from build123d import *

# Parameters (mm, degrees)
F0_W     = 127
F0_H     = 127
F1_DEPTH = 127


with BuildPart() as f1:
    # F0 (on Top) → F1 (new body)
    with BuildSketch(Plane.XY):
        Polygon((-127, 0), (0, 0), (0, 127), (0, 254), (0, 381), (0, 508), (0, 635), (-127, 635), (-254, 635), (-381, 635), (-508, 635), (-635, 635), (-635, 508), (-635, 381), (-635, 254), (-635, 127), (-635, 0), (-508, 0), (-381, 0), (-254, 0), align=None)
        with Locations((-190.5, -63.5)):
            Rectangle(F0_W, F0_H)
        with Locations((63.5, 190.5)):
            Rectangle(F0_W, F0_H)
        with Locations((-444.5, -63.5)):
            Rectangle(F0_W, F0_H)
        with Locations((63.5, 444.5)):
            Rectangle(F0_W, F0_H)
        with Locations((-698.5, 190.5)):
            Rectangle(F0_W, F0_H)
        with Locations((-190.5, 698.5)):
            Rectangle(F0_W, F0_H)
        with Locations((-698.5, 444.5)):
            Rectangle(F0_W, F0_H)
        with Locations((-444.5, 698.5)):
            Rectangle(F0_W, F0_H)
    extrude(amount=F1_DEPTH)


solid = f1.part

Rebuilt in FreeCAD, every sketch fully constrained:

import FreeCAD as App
import Part
import Sketcher

V = App.Vector
Q = App.Units.Quantity


def add_polygon(sketch, points):
    """Adds a closed chain of lines whose ends are joined by coincident constraints."""
    first, n = sketch.GeometryCount, len(points)
    for a, b in zip(points, points[1:] + points[:1]):
        sketch.addGeometry(Part.LineSegment(App.Vector(*a, 0), App.Vector(*b, 0)), False)
    for i in range(n):
        sketch.addConstraint(Sketcher.Constraint("Coincident", first + i, 2, first + (i + 1) % n, 1))

doc = App.newDocument("Part")
body = doc.addObject("PartDesign::Body", "Body")

# Sketch on XY plane
sketch1 = doc.addObject("Sketcher::SketchObject", "Sketch")
body.addObject(sketch1)
sketch1.AttachmentSupport = (doc.XY_Plane, [""])
sketch1.MapMode = "FlatFace"
add_polygon(sketch1, [(0, 0), (0, 127), (127, 127), (127, 254), (0, 254), (0, 381), (127, 381), (127, 508), (0, 508), (0, 635), (-127, 635), (-127, 762), (-254, 762), (-254, 635), (-381, 635), (-381, 762), (-508, 762), (-508, 635), (-635, 635), (-635, 508), (-762, 508), (-762, 381), (-635, 381), (-635, 254), (-762, 254), (-762, 127), (-635, 127), (-635, 0), (-508, 0), (-508, -127), (-381, -127), (-381, 0), (-254, 0), (-254, -127), (-127, -127), (-127, 0)])  # lines 0-35
sketch1.addConstraint([
    Sketcher.Constraint("Vertical", 0),
    Sketcher.Constraint("Horizontal", 1),
    Sketcher.Constraint("Vertical", 2),
    Sketcher.Constraint("Horizontal", 3),
    Sketcher.Constraint("Vertical", 4),
    Sketcher.Constraint("Horizontal", 5),
    Sketcher.Constraint("Vertical", 6),
    Sketcher.Constraint("Horizontal", 7),
    Sketcher.Constraint("Vertical", 8),
    Sketcher.Constraint("Horizontal", 9),
    Sketcher.Constraint("Vertical", 10),
    Sketcher.Constraint("Horizontal", 11),
    Sketcher.Constraint("Vertical", 12),
    Sketcher.Constraint("Horizontal", 13),
    Sketcher.Constraint("Vertical", 14),
    Sketcher.Constraint("Horizontal", 15),
    Sketcher.Constraint("Vertical", 16),
    Sketcher.Constraint("Horizontal", 17),
    Sketcher.Constraint("Vertical", 18),
    Sketcher.Constraint("Horizontal", 19),
    Sketcher.Constraint("Vertical", 20),
    Sketcher.Constraint("Horizontal", 21),
    Sketcher.Constraint("Vertical", 22),
    Sketcher.Constraint("Horizontal", 23),
    Sketcher.Constraint("Vertical", 24),
    Sketcher.Constraint("Horizontal", 25),
    Sketcher.Constraint("Vertical", 26),
    Sketcher.Constraint("Horizontal", 27),
    Sketcher.Constraint("Vertical", 28),
    Sketcher.Constraint("Horizontal", 29),
    Sketcher.Constraint("Vertical", 30),
    Sketcher.Constraint("Horizontal", 31),
    Sketcher.Constraint("Vertical", 32),
    Sketcher.Constraint("Horizontal", 33),
    Sketcher.Constraint("Vertical", 34),
    Sketcher.Constraint("Horizontal", 35),
    Sketcher.Constraint("Coincident", 35, 2, -1, 1),
    Sketcher.Constraint("Symmetric", 1, 2, 33, 2, -1, 1),
    Sketcher.Constraint("PointOnObject", 3, 2, -2),
    Sketcher.Constraint("PointOnObject", 7, 2, -2),
    Sketcher.Constraint("PointOnObject", 26, 2, -1),
    Sketcher.Constraint("PointOnObject", 30, 2, -1),
    Sketcher.Constraint("Horizontal", 9, 2, 12, 2),
    Sketcher.Constraint("Horizontal", 11, 2, 14, 2),
    Sketcher.Constraint("Horizontal", 13, 2, 16, 2),
    Sketcher.Constraint("Horizontal", 7, 2, 18, 2),
    Sketcher.Constraint("Horizontal", 5, 2, 20, 2),
    Sketcher.Constraint("Horizontal", 3, 2, 22, 2),
    Sketcher.Constraint("Horizontal", 1, 2, 24, 2),
    Sketcher.Constraint("Horizontal", 29, 2, 32, 2),
    Sketcher.Constraint("Vertical", 2, 2, 5, 2),
    Sketcher.Constraint("Vertical", 18, 2, 21, 2),
    Sketcher.Constraint("Vertical", 20, 2, 23, 2),
    Sketcher.Constraint("Vertical", 22, 2, 25, 2),
    Sketcher.Constraint("Vertical", 16, 2, 27, 2),
    Sketcher.Constraint("Vertical", 14, 2, 29, 2),
    Sketcher.Constraint("Vertical", 12, 2, 31, 2),
    Sketcher.Constraint("Vertical", 10, 2, 33, 2),
    Sketcher.Constraint("Equal", 9, 11),
    Sketcher.Constraint("Equal", 11, 13),
    Sketcher.Constraint("Equal", 13, 15),
    Sketcher.Constraint("Equal", 15, 17),
    Sketcher.Constraint("Equal", 17, 19),
    Sketcher.Constraint("Equal", 35, 0),
    Sketcher.Constraint("Equal", 0, 2),
    Sketcher.Constraint("Equal", 2, 4),
    Sketcher.Constraint("Equal", 4, 6),
    Sketcher.Constraint("Equal", 6, 8),
    Sketcher.Constraint("Equal", 8, 10),
    Sketcher.Constraint("DistanceX", 1, 1, 1, 2, Q("5 in")),
])
pad1 = doc.addObject("PartDesign::Pad", "Pad")
body.addObject(pad1)
pad1.Profile = sketch1
pad1.Length = Q("5 in")

doc.recompute()
